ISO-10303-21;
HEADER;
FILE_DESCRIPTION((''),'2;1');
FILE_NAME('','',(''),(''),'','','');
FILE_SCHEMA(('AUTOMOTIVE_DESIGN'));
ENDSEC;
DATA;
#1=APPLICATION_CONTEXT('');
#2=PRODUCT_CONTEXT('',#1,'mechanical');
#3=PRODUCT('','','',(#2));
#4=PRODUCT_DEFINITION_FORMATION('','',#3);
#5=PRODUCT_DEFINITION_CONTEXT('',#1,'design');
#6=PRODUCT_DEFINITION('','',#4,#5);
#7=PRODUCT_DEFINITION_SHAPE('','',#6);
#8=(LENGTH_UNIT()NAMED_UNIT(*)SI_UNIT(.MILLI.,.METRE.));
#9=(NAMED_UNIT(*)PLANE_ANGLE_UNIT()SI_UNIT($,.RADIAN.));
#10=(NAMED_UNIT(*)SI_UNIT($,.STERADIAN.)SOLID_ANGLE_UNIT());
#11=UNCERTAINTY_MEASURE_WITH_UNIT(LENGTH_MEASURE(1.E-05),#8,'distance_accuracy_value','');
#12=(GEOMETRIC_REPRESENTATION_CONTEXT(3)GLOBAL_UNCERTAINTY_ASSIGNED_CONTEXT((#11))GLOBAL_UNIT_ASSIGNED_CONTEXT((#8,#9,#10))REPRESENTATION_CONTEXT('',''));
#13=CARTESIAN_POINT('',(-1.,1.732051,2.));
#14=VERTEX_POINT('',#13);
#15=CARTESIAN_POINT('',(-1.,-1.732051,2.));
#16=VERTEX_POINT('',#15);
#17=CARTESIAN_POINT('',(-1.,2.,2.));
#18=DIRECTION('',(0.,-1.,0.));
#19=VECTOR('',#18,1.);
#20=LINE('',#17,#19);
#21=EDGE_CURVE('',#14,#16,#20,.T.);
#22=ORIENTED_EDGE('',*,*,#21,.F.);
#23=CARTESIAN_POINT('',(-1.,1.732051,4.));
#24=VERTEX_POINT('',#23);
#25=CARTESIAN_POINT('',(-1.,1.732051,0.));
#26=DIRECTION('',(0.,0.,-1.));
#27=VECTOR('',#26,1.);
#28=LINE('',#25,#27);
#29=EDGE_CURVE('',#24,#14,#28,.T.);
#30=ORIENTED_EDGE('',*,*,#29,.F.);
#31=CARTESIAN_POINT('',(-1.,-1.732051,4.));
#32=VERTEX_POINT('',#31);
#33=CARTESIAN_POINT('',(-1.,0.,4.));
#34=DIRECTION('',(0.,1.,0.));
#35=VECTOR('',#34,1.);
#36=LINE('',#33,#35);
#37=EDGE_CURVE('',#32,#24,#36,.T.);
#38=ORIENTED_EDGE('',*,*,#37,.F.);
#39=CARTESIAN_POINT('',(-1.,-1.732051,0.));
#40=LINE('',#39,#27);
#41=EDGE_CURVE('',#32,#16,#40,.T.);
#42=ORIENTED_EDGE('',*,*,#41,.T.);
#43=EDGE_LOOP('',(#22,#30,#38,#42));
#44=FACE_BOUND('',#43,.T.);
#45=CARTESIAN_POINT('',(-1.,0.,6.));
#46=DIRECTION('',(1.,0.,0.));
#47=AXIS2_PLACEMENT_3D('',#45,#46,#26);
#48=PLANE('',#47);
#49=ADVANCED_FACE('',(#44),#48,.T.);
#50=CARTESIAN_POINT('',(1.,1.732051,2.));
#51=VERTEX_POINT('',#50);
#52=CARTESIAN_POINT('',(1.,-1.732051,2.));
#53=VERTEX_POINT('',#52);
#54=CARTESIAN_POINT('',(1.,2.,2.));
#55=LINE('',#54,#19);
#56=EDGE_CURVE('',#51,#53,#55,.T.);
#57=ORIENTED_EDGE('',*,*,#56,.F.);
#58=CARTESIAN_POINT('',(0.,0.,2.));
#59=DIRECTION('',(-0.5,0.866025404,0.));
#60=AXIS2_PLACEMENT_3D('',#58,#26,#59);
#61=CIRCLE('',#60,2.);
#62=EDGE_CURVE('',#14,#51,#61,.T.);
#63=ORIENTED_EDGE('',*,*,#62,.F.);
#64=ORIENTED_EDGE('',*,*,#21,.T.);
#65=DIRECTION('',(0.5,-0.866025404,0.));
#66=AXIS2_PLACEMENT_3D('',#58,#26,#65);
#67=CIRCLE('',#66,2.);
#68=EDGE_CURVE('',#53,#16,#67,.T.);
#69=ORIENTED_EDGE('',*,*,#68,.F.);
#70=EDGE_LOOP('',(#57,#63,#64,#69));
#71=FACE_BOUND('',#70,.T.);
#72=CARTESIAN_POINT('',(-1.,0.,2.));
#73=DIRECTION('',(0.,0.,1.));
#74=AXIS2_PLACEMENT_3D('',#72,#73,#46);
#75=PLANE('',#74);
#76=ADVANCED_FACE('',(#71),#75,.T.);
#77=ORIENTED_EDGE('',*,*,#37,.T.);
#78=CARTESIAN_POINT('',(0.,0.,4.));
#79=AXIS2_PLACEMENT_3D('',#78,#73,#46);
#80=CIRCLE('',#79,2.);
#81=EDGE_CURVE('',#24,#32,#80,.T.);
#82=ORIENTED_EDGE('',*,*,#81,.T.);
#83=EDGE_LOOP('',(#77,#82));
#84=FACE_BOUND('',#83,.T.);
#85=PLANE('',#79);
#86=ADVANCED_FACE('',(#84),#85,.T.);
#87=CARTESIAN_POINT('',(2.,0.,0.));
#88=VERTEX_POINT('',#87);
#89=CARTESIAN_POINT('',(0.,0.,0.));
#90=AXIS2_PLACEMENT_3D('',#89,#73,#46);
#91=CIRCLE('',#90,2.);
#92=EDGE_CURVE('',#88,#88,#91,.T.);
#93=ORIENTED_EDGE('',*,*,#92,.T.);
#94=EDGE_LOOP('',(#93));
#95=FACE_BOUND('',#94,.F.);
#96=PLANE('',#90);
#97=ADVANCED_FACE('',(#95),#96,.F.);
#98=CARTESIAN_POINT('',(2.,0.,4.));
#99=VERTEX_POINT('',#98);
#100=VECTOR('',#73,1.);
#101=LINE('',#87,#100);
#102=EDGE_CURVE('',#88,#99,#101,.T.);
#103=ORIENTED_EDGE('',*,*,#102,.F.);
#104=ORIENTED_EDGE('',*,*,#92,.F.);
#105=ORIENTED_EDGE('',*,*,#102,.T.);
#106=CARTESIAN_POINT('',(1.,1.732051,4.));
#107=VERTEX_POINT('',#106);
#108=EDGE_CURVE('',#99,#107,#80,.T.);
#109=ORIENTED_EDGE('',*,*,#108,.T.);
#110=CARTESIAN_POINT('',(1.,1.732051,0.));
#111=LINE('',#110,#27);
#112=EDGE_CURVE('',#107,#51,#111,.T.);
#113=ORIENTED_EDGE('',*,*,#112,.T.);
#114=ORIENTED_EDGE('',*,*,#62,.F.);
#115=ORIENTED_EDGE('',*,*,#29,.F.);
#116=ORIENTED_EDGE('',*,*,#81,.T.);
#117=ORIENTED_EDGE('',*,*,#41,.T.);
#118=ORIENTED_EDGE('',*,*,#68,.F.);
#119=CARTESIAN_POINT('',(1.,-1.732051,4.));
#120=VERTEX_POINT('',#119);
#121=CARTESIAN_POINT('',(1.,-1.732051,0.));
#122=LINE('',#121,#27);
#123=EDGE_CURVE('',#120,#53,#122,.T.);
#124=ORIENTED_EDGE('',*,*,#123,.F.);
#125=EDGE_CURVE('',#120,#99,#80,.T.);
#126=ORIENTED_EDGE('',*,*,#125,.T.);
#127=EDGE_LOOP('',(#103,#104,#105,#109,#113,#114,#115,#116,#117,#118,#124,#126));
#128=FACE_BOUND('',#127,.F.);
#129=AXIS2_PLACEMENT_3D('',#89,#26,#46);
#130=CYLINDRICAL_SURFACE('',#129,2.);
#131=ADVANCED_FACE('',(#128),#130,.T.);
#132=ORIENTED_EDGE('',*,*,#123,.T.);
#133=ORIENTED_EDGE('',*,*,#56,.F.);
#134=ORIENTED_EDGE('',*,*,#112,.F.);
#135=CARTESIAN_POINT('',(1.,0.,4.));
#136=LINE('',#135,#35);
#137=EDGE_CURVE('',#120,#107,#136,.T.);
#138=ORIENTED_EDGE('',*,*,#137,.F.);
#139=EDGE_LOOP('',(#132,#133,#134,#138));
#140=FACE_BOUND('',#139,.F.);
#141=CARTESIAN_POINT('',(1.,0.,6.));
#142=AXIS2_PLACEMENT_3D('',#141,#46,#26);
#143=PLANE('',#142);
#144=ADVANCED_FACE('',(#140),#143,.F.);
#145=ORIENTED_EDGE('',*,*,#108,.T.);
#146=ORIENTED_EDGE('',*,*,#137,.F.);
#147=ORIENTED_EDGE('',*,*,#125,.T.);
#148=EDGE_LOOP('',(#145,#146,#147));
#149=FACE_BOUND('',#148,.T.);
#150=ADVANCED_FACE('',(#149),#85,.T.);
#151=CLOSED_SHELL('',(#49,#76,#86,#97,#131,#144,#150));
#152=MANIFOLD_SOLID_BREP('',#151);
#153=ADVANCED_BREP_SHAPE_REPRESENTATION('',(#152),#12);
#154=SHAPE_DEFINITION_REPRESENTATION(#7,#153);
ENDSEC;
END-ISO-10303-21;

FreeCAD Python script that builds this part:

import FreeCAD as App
import Part
import Sketcher

V = App.Vector
Q = App.Units.Quantity


def add_polygon(sketch, points):
    """Adds a closed chain of lines whose ends are joined by coincident constraints."""
    first, n = sketch.GeometryCount, len(points)
    for a, b in zip(points, points[1:] + points[:1]):
        sketch.addGeometry(Part.LineSegment(App.Vector(*a, 0), App.Vector(*b, 0)), False)
    for i in range(n):
        sketch.addConstraint(Sketcher.Constraint("Coincident", first + i, 2, first + (i + 1) % n, 1))

doc = App.newDocument("Part")
body = doc.addObject("PartDesign::Body", "Body")

# Sketch on XY plane
sketch1 = body.newObject("Sketcher::SketchObject", "Sketch")
sketch1.AttachmentSupport = (doc.getObject("XY_Plane"), [""])
sketch1.MapMode = "FlatFace"
sketch1.addGeometry(Part.Circle(V(0, 0, 0), V(0, 0, 1), 2), False)
sketch1.addConstraint(Sketcher.Constraint("Coincident", 0, 3, -1, 1))
sketch1.addConstraint(Sketcher.Constraint("Diameter", 0, Q("4 mm")))
pad1 = body.newObject("PartDesign::Pad", "Pad")
pad1.Profile = sketch1
pad1.Length = 4

# Sketch on XZ plane
sketch2 = body.newObject("Sketcher::SketchObject", "Sketch001")
sketch2.AttachmentSupport = (doc.getObject("XZ_Plane"), [""])
sketch2.MapMode = "FlatFace"
add_polygon(sketch2, [(-1, 2), (-1, 6), (1, 6), (1, 2)])  # lines 0-3
sketch2.addConstraint(Sketcher.Constraint("Vertical", 0))
sketch2.addConstraint(Sketcher.Constraint("Horizontal", 1))
sketch2.addConstraint(Sketcher.Constraint("Vertical", 2))
sketch2.addConstraint(Sketcher.Constraint("Horizontal", 3))
sketch2.addConstraint(Sketcher.Constraint("DistanceX", 1, 1, 1, 2, Q("2 mm")))
sketch2.addConstraint(Sketcher.Constraint("DistanceY", 0, 1, 0, 2, Q("4 mm")))
sketch2.addConstraint(Sketcher.Constraint("DistanceX", 0, 2, -1, 1, Q("1 mm")))
sketch2.addConstraint(Sketcher.Constraint("DistanceY", -1, 1, 0, 2, Q("6 mm")))
pocket1 = body.newObject("PartDesign::Pocket", "Pocket")
pocket1.Profile = sketch2
pocket1.Length = 4
pocket1.Midplane = True

doc.recompute()
